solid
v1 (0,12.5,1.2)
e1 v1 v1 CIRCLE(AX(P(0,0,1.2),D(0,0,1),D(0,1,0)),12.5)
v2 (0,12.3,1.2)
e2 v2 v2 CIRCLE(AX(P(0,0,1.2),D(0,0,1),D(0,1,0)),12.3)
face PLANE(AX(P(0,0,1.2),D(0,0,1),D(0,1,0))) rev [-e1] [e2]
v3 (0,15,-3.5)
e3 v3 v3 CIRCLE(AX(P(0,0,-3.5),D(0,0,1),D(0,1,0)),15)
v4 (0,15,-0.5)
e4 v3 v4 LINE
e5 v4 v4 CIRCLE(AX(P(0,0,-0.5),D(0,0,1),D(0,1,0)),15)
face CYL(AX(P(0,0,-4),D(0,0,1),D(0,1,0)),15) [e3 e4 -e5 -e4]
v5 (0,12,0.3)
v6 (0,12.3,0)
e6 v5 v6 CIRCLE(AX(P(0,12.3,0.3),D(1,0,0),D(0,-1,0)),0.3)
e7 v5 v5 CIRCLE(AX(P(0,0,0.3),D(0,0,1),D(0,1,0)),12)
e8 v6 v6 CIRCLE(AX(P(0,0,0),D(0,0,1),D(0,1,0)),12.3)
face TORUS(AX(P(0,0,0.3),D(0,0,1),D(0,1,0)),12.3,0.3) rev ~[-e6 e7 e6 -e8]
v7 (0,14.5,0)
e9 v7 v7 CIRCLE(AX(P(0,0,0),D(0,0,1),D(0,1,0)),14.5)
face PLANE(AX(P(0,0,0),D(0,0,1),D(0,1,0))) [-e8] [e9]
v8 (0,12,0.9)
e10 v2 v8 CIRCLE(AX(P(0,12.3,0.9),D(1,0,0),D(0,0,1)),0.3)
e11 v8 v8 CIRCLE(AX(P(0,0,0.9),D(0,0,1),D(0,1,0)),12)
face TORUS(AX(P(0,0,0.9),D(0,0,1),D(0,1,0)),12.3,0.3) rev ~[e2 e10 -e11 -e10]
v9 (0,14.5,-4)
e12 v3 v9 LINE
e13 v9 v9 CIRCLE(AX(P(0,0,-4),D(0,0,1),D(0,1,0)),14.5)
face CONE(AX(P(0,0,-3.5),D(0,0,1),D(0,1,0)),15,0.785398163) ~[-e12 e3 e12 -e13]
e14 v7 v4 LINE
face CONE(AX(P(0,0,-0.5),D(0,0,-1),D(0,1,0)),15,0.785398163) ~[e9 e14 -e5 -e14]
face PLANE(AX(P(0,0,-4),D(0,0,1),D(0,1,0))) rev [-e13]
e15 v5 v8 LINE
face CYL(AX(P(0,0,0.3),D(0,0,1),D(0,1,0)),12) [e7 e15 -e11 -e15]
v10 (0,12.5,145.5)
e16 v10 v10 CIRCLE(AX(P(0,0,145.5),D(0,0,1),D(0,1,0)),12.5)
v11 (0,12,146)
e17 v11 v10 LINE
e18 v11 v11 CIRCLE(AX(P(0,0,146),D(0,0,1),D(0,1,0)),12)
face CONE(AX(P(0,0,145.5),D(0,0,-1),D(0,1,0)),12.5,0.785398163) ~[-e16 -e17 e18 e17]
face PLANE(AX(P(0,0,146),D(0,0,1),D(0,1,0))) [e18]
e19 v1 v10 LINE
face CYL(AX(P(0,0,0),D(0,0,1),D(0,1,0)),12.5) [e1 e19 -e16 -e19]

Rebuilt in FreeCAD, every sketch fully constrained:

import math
import FreeCAD as App
import Part
import Sketcher
from FreeCAD import Vector


def edges_at(feature, points):
    """Names of the edges that pass closest to the given points."""
    edges = feature.Shape.Edges
    near = lambda p: min(range(len(edges)), key=lambda i: edges[i].distToShape(Part.Vertex(*p))[0])
    return sorted({f"Edge{near(p) + 1}" for p in points})


def add_polygon(sketch, points):
    """Adds a closed chain of lines whose ends are joined by coincident constraints."""
    first, n = sketch.GeometryCount, len(points)
    for a, b in zip(points, points[1:] + points[:1]):
        sketch.addGeometry(Part.LineSegment(App.Vector(*a, 0), App.Vector(*b, 0)), False)
    for i in range(n):
        sketch.addConstraint(Sketcher.Constraint("Coincident", first + i, 2, first + (i + 1) % n, 1))

doc = App.newDocument("Part")
body = doc.addObject("PartDesign::Body", "Body")

sketch1 = body.newObject("Sketcher::SketchObject", "Sketch")
sketch1.AttachmentSupport = (doc.getObject("YZ_Plane"), [""])
sketch1.MapMode = "FlatFace"
add_polygon(sketch1, [(0, 146), (0, -4), (15, -4), (15, 0), (12.5, 0), (12.5, 146)])
sketch1.addConstraint([
    Sketcher.Constraint("Vertical", 0),
    Sketcher.Constraint("Horizontal", 1),
    Sketcher.Constraint("Vertical", 2),
    Sketcher.Constraint("Horizontal", 3),
    Sketcher.Constraint("Vertical", 4),
    Sketcher.Constraint("Horizontal", 5),
    Sketcher.Constraint("PointOnObject", 0, 2, -2),
    Sketcher.Constraint("PointOnObject", 2, 2, -1),
    Sketcher.Constraint("DistanceY", 0, 2, 0, 1, 150.0),
    Sketcher.Constraint("DistanceY", 2, 1, 2, 2, 4.0),
    Sketcher.Constraint("DistanceX", 1, 1, 1, 2, 15.0),
    Sketcher.Constraint("DistanceX", 3, 2, 3, 1, 2.5),
])
revolution = body.newObject("PartDesign::Revolution", "Revolution")
revolution.Profile = sketch1
revolution.ReferenceAxis = (sketch1, ["V_Axis"])
revolution.Angle = 360

sketch2 = body.newObject("Sketcher::SketchObject", "Sketch001")
sketch2.AttachmentSupport = (doc.getObject("YZ_Plane"), [""])
sketch2.MapMode = "FlatFace"
sketch2.addGeometry([
    Part.LineSegment(Vector(12.3, 0, 0), Vector(12.5, 0, 0)),
    Part.LineSegment(Vector(12.5, 0, 0), Vector(12.5, 1.2, 0)),
    Part.LineSegment(Vector(12.5, 1.2, 0), Vector(12.3, 1.2, 0)),
    Part.ArcOfCircle(Part.Circle(Vector(12.3, 0.9, 0), Vector(0, 0, 1), 0.3), math.radians(90), math.radians(180)),
    Part.LineSegment(Vector(12, 0.9, 0), Vector(12, 0.3, 0)),
    Part.ArcOfCircle(Part.Circle(Vector(12.3, 0.3, 0), Vector(0, 0, 1), 0.3), math.radians(180), math.radians(270)),
], False)
sketch2.addConstraint([
    Sketcher.Constraint("Coincident", 0, 2, 1, 1),
    Sketcher.Constraint("Coincident", 1, 2, 2, 1),
    Sketcher.Constraint("Tangent", 2, 2, 3, 1),
    Sketcher.Constraint("Tangent", 3, 2, 4, 1),
    Sketcher.Constraint("Tangent", 4, 2, 5, 1),
    Sketcher.Constraint("Tangent", 5, 2, 0, 1),
    Sketcher.Constraint("Horizontal", 0),
    Sketcher.Constraint("Vertical", 1),
    Sketcher.Constraint("Horizontal", 2),
    Sketcher.Constraint("Vertical", 4),
    Sketcher.Constraint("Equal", 3, 5),
    Sketcher.Constraint("PointOnObject", 0, 2, -1),
    Sketcher.Constraint("Radius", 3, 0.3),
    Sketcher.Constraint("DistanceY", 1, 1, 1, 2, 1.2),
    Sketcher.Constraint("DistanceX", 3, 2, 1, 2, 0.5),
    Sketcher.Constraint("DistanceX", -1, 1, 3, 2, 12.0),
])
groove = body.newObject("PartDesign::Groove", "Groove")
groove.Profile = sketch2
groove.ReferenceAxis = (sketch2, ["V_Axis"])
groove.Angle = 360
doc.recompute()

chamfer = body.newObject("PartDesign::Chamfer", "Chamfer")
chamfer.Base = (groove, edges_at(groove, [(0, -12.5, 146), (0, -15, 0), (0, -15, -4)]))
chamfer.Size = 0.5

doc.recompute()
